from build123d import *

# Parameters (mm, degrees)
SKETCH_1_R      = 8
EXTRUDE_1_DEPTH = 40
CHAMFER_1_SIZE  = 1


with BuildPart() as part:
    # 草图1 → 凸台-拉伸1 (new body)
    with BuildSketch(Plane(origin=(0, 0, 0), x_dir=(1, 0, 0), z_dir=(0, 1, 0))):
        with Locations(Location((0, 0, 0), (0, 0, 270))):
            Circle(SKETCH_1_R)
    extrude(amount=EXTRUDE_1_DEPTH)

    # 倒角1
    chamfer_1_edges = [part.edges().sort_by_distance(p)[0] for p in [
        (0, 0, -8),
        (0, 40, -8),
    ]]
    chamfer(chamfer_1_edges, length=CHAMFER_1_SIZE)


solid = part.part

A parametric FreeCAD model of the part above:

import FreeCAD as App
import Part
import Sketcher

V = App.Vector


def edges_at(feature, points):
    """Names of the edges that pass closest to the given points."""
    edges = feature.Shape.Edges
    near = lambda p: min(range(len(edges)), key=lambda i: edges[i].distToShape(Part.Vertex(*p))[0])
    return sorted({f"Edge{near(p) + 1}" for p in points})

doc = App.newDocument("Part")
body = doc.addObject("PartDesign::Body", "Body")

# Sketch on XZ plane
sketch1 = body.newObject("Sketcher::SketchObject", "Sketch")
sketch1.AttachmentSupport = (doc.getObject("XZ_Plane"), [""])
sketch1.MapMode = "FlatFace"
sketch1.addGeometry(Part.Circle(V(0, 0, 0), V(0, 0, 1), 8), False)
sketch1.addConstraint([
    Sketcher.Constraint("Coincident", 0, 3, -1, 1),
    Sketcher.Constraint("Diameter", 0, 16.0),
])
pad1 = body.newObject("PartDesign::Pad", "Pad")
pad1.Profile = sketch1
pad1.Length = 40
pad1.Reversed = True
doc.recompute()

chamfer = body.newObject("PartDesign::Chamfer", "Chamfer")
chamfer.Base = (pad1, edges_at(pad1, [(0, 0, -8), (0, 40, -8)]))
chamfer.Size = 1

doc.recompute()
